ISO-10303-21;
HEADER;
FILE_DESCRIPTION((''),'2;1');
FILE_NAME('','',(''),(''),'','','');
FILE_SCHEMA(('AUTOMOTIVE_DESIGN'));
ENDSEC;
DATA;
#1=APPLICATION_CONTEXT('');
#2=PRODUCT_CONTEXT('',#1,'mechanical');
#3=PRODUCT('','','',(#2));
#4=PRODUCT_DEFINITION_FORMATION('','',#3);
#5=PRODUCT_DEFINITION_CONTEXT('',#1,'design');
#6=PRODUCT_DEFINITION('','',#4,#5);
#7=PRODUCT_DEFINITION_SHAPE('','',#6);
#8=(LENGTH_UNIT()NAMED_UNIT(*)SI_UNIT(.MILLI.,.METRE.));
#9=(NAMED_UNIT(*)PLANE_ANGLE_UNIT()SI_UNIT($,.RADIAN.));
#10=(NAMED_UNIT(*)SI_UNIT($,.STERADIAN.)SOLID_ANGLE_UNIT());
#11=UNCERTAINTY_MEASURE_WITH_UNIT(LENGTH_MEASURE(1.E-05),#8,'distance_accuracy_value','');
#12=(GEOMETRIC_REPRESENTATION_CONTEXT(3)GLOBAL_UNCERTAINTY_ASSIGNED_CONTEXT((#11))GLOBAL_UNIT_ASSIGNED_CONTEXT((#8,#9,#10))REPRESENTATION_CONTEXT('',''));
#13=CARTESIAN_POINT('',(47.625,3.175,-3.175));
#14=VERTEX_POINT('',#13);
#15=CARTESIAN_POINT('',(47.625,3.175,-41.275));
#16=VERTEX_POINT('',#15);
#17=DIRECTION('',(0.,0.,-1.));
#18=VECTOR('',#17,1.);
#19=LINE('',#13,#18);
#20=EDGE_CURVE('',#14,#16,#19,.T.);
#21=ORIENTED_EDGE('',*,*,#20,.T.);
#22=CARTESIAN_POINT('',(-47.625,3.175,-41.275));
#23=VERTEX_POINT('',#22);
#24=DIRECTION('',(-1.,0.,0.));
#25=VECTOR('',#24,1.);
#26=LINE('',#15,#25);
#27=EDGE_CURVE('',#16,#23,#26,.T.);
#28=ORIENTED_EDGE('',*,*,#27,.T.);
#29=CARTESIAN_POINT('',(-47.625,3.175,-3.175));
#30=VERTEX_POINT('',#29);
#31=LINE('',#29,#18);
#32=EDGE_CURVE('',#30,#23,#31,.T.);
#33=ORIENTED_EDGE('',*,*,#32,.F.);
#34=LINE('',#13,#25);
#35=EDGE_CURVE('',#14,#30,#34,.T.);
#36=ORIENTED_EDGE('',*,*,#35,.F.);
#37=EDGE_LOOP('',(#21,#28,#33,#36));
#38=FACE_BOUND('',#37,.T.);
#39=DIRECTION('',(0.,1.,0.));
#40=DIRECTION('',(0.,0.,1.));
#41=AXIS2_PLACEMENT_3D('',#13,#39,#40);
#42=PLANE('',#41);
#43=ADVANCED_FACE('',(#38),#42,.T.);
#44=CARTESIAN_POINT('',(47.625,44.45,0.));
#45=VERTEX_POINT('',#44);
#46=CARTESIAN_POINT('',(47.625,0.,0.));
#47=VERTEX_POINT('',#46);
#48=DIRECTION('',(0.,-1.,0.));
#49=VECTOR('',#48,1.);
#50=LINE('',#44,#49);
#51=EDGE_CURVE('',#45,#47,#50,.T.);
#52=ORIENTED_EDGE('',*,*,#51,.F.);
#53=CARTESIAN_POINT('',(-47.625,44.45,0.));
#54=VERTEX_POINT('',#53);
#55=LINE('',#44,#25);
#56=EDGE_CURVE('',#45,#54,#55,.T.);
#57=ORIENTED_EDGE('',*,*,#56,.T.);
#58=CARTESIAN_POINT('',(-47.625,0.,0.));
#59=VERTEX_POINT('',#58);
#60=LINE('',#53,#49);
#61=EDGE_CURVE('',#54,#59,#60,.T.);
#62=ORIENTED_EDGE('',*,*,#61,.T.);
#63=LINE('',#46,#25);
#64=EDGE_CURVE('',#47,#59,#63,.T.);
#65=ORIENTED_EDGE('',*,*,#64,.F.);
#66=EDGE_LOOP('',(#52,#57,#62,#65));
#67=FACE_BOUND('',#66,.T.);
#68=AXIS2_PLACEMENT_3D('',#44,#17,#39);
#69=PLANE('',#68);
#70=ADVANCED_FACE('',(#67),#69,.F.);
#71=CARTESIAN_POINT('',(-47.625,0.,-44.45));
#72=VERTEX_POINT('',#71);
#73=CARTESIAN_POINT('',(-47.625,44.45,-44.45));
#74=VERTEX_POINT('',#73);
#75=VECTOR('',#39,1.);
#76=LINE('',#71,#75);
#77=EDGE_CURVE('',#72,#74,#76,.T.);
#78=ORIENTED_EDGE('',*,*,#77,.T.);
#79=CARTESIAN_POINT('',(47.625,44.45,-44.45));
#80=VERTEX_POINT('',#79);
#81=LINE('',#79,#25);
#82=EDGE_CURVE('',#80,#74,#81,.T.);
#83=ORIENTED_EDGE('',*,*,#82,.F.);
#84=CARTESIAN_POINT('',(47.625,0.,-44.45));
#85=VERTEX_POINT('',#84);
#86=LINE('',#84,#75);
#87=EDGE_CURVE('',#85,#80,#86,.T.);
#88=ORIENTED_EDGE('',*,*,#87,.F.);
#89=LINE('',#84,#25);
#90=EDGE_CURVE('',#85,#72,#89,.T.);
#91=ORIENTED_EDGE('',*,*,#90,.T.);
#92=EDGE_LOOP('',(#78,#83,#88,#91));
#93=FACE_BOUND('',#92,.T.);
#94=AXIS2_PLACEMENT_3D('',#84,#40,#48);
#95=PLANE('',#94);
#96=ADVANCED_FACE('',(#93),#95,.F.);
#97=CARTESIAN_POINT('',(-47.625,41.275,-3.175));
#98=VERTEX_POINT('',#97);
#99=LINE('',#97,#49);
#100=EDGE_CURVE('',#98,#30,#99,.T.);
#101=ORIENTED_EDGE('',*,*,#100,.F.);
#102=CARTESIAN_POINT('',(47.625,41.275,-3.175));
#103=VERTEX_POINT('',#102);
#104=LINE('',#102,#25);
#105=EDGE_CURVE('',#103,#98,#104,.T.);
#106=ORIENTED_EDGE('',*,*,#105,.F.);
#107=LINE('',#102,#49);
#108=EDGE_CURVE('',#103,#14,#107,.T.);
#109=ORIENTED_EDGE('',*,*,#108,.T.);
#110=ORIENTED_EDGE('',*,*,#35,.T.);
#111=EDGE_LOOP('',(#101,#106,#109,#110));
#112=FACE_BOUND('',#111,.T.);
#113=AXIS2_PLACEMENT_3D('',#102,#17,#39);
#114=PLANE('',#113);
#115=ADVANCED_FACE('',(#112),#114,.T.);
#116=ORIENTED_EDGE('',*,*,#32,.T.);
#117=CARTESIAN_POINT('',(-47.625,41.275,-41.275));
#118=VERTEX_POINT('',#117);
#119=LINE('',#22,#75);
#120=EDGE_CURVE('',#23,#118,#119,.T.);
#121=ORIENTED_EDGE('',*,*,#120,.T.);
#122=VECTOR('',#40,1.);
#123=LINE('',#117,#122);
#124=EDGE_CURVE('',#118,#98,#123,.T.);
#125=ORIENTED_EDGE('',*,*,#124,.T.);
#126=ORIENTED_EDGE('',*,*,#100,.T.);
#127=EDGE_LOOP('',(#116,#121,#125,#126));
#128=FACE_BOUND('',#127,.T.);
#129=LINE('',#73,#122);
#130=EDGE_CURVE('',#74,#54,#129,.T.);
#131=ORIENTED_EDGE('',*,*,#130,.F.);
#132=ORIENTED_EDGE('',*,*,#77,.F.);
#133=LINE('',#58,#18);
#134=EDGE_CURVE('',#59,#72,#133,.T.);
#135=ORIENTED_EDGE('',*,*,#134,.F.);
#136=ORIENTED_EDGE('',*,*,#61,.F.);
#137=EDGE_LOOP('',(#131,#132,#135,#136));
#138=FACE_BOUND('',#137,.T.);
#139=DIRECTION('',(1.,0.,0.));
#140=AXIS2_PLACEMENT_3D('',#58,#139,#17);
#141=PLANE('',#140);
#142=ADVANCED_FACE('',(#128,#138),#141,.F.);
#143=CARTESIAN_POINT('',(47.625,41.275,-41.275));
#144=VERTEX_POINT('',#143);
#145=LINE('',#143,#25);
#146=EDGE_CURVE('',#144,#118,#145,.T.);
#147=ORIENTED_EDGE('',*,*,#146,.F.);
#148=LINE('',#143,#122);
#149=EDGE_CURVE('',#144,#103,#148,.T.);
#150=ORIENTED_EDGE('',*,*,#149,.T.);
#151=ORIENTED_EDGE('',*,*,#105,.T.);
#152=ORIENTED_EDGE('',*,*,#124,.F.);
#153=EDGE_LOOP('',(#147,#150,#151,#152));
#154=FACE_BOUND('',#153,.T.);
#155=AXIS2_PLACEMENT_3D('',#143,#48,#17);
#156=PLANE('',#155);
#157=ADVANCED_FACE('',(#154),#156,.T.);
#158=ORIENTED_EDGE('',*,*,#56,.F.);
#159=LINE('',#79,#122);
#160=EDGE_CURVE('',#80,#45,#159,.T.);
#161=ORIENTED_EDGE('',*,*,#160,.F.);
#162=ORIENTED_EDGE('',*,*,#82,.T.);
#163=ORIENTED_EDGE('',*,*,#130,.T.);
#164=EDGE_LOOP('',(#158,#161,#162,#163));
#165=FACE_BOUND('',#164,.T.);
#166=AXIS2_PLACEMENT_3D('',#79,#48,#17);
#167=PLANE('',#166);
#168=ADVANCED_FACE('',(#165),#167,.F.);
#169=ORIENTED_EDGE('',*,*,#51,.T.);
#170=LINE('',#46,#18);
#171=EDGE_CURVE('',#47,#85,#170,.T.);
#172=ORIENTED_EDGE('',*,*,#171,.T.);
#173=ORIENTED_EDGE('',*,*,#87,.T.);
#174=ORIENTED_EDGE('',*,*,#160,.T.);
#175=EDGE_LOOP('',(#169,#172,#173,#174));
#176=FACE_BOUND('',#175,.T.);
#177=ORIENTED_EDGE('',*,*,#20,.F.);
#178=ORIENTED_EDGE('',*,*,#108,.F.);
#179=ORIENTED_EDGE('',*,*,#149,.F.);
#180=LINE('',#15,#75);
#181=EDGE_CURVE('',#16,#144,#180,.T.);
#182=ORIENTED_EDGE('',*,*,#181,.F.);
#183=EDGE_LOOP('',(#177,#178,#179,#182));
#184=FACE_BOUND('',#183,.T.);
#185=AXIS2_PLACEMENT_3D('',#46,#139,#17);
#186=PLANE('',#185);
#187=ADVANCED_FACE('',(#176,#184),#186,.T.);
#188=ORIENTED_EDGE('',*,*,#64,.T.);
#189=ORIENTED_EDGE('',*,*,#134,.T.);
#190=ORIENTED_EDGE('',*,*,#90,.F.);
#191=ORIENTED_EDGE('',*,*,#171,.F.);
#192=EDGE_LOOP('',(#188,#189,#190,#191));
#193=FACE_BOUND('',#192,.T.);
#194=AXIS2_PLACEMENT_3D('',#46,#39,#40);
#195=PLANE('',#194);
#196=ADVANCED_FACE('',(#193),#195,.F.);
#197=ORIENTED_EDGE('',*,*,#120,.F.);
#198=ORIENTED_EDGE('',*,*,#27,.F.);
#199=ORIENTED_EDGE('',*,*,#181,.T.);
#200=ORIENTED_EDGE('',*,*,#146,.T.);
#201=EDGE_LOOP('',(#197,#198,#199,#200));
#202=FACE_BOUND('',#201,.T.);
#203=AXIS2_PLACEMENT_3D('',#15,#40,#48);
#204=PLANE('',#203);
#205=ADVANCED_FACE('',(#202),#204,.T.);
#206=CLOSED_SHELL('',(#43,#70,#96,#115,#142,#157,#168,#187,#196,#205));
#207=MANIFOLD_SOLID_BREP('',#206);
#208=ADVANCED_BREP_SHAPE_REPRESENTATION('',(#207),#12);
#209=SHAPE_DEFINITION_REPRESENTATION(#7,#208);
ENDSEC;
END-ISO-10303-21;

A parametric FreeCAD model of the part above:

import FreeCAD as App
import Part
import Sketcher
Q = App.Units.Quantity

doc = App.newDocument("Part")
body = doc.addObject("PartDesign::Body", "Body")

# Sketch on YZ plane
sketch1 = body.newObject("Sketcher::SketchObject", "Sketch")
sketch1.AttachmentSupport = (doc.getObject("YZ_Plane"), [""])
sketch1.MapMode = "FlatFace"
sketch1.addGeometry(Part.LineSegment(App.Vector(44.45, 0, 0), App.Vector(0, 0, 0)), False)
sketch1.addGeometry(Part.LineSegment(App.Vector(0, 0, 0), App.Vector(0, -44.45, 0)), False)
sketch1.addGeometry(Part.LineSegment(App.Vector(0, -44.45, 0), App.Vector(44.45, -44.45, 0)), False)
sketch1.addGeometry(Part.LineSegment(App.Vector(44.45, -44.45, 0), App.Vector(44.45, 0, 0)), False)
sketch1.addGeometry(Part.LineSegment(App.Vector(3.175, -41.275, 0), App.Vector(3.175, -3.175, 0)), False)
sketch1.addGeometry(Part.LineSegment(App.Vector(3.175, -3.175, 0), App.Vector(41.275, -3.175, 0)), False)
sketch1.addGeometry(Part.LineSegment(App.Vector(41.275, -3.175, 0), App.Vector(41.275, -41.275, 0)), False)
sketch1.addGeometry(Part.LineSegment(App.Vector(41.275, -41.275, 0), App.Vector(3.175, -41.275, 0)), False)
sketch1.addConstraint(Sketcher.Constraint("Coincident", 0, 2, 1, 1))
sketch1.addConstraint(Sketcher.Constraint("Coincident", 1, 2, 2, 1))
sketch1.addConstraint(Sketcher.Constraint("Coincident", 2, 2, 3, 1))
sketch1.addConstraint(Sketcher.Constraint("Coincident", 3, 2, 0, 1))
sketch1.addConstraint(Sketcher.Constraint("Coincident", 4, 2, 5, 1))
sketch1.addConstraint(Sketcher.Constraint("Coincident", 5, 2, 6, 1))
sketch1.addConstraint(Sketcher.Constraint("Coincident", 6, 2, 7, 1))
sketch1.addConstraint(Sketcher.Constraint("Coincident", 7, 2, 4, 1))
sketch1.addConstraint(Sketcher.Constraint("Horizontal", 0))
sketch1.addConstraint(Sketcher.Constraint("Vertical", 1))
sketch1.addConstraint(Sketcher.Constraint("Horizontal", 2))
sketch1.addConstraint(Sketcher.Constraint("Vertical", 3))
sketch1.addConstraint(Sketcher.Constraint("Vertical", 4))
sketch1.addConstraint(Sketcher.Constraint("Horizontal", 5))
sketch1.addConstraint(Sketcher.Constraint("Vertical", 6))
sketch1.addConstraint(Sketcher.Constraint("Horizontal", 7))
sketch1.addConstraint(Sketcher.Constraint("Coincident", 0, 2, -1, 1))
sketch1.addConstraint(Sketcher.Constraint("Equal", 2, 1))
sketch1.addConstraint(Sketcher.Constraint("Equal", 7, 4))
sketch1.addConstraint(Sketcher.Constraint("DistanceX", 5, 1, 5, 2, Q("1.5 in")))
sketch1.addConstraint(Sketcher.Constraint("DistanceX", 0, 2, 0, 1, Q("1.75 in")))
sketch1.addConstraint(Sketcher.Constraint("DistanceX", -1, 1, 4, 2, Q("0.125 in")))
sketch1.addConstraint(Sketcher.Constraint("DistanceY", 4, 2, -1, 1, Q("0.125 in")))
pad1 = body.newObject("PartDesign::Pad", "Pad")
pad1.Profile = sketch1
pad1.Length = Q("3.75 in")
pad1.Midplane = True

doc.recompute()
